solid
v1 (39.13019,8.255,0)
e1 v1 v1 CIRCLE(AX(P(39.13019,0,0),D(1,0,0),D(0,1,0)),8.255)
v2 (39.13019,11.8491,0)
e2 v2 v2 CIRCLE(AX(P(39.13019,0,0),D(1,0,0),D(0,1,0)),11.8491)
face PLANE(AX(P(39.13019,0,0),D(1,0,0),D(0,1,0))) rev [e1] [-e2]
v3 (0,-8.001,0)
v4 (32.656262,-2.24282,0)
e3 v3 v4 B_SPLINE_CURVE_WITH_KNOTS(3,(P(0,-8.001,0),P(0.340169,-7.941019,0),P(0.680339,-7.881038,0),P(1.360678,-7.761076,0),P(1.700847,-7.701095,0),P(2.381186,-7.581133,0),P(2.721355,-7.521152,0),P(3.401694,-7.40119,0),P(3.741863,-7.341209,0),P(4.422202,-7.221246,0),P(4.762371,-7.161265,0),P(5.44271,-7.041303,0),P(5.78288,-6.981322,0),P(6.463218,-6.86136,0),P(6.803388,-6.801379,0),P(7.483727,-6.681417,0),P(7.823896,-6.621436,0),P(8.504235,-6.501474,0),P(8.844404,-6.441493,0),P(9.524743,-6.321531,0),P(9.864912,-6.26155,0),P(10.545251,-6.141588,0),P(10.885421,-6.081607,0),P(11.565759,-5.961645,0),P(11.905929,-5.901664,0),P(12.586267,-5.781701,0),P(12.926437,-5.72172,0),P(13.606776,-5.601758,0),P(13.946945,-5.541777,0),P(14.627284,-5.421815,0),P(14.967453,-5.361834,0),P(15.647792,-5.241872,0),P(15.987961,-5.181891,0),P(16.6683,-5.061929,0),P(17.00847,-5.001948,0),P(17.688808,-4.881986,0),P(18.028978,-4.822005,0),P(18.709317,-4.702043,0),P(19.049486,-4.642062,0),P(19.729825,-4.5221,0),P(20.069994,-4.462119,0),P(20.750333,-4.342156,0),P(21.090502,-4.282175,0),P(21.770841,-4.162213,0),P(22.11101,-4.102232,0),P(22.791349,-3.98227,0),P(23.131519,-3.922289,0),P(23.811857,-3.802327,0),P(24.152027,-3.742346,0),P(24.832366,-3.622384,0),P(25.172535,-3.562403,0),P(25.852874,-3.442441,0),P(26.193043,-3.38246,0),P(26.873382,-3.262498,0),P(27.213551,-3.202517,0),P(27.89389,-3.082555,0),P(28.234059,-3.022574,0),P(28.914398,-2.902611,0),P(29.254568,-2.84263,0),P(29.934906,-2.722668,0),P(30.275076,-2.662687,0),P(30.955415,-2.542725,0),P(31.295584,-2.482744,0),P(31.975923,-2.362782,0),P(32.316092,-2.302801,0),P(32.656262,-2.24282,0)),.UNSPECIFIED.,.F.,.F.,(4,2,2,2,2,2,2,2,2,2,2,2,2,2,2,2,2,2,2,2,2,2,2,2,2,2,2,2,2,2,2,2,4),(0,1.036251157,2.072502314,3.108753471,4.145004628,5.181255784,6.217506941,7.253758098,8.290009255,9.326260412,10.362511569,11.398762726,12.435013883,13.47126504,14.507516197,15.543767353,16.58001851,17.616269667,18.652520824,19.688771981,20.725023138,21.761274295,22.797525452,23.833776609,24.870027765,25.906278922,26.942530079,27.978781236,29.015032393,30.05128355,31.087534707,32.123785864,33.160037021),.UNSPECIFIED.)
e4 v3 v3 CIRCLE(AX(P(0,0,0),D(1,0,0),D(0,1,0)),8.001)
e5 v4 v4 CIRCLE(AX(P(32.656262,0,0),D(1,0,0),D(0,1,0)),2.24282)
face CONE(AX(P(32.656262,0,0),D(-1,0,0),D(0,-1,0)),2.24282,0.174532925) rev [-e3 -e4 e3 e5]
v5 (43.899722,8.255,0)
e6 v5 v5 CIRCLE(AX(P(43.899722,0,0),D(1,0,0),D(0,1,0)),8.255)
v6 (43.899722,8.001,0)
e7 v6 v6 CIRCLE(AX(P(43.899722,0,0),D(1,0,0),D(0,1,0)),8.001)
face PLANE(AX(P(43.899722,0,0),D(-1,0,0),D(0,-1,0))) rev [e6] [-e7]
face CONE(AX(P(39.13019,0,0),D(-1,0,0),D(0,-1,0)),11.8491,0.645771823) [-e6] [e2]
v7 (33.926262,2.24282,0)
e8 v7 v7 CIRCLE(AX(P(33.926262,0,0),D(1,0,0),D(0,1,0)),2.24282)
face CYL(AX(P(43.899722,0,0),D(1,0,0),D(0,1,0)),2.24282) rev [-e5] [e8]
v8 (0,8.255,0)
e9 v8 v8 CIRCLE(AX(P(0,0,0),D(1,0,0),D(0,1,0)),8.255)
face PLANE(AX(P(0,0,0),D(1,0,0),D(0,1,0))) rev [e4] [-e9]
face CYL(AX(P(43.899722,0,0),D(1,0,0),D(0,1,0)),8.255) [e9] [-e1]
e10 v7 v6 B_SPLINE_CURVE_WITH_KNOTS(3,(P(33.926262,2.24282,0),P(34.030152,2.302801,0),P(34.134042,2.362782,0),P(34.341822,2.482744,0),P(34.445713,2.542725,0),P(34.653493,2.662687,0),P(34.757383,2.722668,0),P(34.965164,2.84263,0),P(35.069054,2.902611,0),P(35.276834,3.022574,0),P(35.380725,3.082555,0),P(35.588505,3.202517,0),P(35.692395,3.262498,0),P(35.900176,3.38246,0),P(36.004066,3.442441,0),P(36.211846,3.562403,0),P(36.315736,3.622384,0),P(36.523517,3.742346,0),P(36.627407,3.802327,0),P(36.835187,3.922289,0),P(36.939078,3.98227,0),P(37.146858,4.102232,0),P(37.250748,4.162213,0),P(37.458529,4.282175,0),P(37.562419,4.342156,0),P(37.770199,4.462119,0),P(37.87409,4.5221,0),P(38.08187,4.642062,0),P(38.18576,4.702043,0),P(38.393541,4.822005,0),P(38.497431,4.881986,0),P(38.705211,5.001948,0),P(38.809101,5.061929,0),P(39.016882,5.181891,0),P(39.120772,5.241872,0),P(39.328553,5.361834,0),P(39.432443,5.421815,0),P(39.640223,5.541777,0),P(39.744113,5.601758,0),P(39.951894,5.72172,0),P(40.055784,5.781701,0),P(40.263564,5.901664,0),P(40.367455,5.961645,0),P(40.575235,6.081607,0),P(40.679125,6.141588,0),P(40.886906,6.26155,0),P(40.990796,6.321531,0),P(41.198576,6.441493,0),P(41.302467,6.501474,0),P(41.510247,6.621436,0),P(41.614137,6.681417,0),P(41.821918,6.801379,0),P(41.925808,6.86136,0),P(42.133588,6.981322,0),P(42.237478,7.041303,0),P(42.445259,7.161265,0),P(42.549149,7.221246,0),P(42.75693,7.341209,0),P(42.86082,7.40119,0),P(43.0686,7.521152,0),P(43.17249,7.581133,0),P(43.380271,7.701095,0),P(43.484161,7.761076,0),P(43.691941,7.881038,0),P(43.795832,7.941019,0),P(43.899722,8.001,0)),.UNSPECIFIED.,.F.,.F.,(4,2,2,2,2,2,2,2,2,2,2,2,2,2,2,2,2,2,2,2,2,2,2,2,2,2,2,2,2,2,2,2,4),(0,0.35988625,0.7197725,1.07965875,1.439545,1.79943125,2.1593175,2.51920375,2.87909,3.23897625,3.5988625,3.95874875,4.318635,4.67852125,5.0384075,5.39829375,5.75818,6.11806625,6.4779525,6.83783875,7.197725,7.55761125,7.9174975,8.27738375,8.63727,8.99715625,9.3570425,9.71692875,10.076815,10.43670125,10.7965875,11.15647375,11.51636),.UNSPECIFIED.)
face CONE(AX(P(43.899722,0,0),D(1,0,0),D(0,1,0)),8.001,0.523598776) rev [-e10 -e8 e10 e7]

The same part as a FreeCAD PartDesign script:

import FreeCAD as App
import Part
import Sketcher
Q = App.Units.Quantity

doc = App.newDocument("Part")
body = doc.addObject("PartDesign::Body", "Body")

sketch1 = body.newObject("Sketcher::SketchObject", "Sketch")
sketch1.AttachmentSupport = (doc.getObject("XY_Plane"), [""])
sketch1.MapMode = "FlatFace"
sketch1.addGeometry([
    Part.LineSegment(App.Vector(0, 8.255, 0), App.Vector(0, 8.001, 0)),
    Part.LineSegment(App.Vector(0, 8.001, 0), App.Vector(32.656262, 2.24282, 0)),
    Part.LineSegment(App.Vector(32.656262, 2.24282, 0), App.Vector(33.926262, 2.24282, 0)),
    Part.LineSegment(App.Vector(33.926262, 2.24282, 0), App.Vector(43.899722, 8.001, 0)),
    Part.LineSegment(App.Vector(43.899722, 8.001, 0), App.Vector(43.899722, 8.255, 0)),
    Part.LineSegment(App.Vector(43.899722, 8.255, 0), App.Vector(39.13019, 11.8491, 0)),
    Part.LineSegment(App.Vector(39.13019, 11.8491, 0), App.Vector(39.13019, 8.255, 0)),
    Part.LineSegment(App.Vector(39.13019, 8.255, 0), App.Vector(0, 8.255, 0)),
], False)
sketch1.addConstraint([
    Sketcher.Constraint("Coincident", 0, 2, 1, 1),
    Sketcher.Constraint("Coincident", 1, 2, 2, 1),
    Sketcher.Constraint("Coincident", 2, 2, 3, 1),
    Sketcher.Constraint("Coincident", 3, 2, 4, 1),
    Sketcher.Constraint("Coincident", 4, 2, 5, 1),
    Sketcher.Constraint("Coincident", 5, 2, 6, 1),
    Sketcher.Constraint("Coincident", 6, 2, 7, 1),
    Sketcher.Constraint("Coincident", 7, 2, 0, 1),
    Sketcher.Constraint("Vertical", 0),
    Sketcher.Constraint("Horizontal", 2),
    Sketcher.Constraint("Vertical", 4),
    Sketcher.Constraint("Vertical", 6),
    Sketcher.Constraint("Horizontal", 7),
    Sketcher.Constraint("PointOnObject", 0, 2, -2),
    Sketcher.Constraint("Horizontal", 0, 2, 3, 2),
    Sketcher.Constraint("Horizontal", 4, 2, 6, 2),
    Sketcher.Constraint("Angle", 1, Q("-10 deg")),
    Sketcher.Constraint("Angle", 3, Q("30 deg")),
    Sketcher.Constraint("Angle", 5, Q("143 deg")),
    Sketcher.Constraint("DistanceX", 2, 1, 2, 2, Q("0.05 in")),
    Sketcher.Constraint("DistanceY", 0, 2, 0, 1, Q("0.01 in")),
    Sketcher.Constraint("DistanceY", 6, 2, 6, 1, Q("0.1415 in")),
    Sketcher.Constraint("DistanceY", -1, 1, 0, 2, Q("0.315 in")),
    Sketcher.Constraint("Distance", 3, Q("0.4534 in")),
])
revolution = body.newObject("PartDesign::Revolution", "Revolution")
revolution.Profile = sketch1
revolution.ReferenceAxis = (sketch1, ["H_Axis"])
revolution.Angle = 360

doc.recompute()
